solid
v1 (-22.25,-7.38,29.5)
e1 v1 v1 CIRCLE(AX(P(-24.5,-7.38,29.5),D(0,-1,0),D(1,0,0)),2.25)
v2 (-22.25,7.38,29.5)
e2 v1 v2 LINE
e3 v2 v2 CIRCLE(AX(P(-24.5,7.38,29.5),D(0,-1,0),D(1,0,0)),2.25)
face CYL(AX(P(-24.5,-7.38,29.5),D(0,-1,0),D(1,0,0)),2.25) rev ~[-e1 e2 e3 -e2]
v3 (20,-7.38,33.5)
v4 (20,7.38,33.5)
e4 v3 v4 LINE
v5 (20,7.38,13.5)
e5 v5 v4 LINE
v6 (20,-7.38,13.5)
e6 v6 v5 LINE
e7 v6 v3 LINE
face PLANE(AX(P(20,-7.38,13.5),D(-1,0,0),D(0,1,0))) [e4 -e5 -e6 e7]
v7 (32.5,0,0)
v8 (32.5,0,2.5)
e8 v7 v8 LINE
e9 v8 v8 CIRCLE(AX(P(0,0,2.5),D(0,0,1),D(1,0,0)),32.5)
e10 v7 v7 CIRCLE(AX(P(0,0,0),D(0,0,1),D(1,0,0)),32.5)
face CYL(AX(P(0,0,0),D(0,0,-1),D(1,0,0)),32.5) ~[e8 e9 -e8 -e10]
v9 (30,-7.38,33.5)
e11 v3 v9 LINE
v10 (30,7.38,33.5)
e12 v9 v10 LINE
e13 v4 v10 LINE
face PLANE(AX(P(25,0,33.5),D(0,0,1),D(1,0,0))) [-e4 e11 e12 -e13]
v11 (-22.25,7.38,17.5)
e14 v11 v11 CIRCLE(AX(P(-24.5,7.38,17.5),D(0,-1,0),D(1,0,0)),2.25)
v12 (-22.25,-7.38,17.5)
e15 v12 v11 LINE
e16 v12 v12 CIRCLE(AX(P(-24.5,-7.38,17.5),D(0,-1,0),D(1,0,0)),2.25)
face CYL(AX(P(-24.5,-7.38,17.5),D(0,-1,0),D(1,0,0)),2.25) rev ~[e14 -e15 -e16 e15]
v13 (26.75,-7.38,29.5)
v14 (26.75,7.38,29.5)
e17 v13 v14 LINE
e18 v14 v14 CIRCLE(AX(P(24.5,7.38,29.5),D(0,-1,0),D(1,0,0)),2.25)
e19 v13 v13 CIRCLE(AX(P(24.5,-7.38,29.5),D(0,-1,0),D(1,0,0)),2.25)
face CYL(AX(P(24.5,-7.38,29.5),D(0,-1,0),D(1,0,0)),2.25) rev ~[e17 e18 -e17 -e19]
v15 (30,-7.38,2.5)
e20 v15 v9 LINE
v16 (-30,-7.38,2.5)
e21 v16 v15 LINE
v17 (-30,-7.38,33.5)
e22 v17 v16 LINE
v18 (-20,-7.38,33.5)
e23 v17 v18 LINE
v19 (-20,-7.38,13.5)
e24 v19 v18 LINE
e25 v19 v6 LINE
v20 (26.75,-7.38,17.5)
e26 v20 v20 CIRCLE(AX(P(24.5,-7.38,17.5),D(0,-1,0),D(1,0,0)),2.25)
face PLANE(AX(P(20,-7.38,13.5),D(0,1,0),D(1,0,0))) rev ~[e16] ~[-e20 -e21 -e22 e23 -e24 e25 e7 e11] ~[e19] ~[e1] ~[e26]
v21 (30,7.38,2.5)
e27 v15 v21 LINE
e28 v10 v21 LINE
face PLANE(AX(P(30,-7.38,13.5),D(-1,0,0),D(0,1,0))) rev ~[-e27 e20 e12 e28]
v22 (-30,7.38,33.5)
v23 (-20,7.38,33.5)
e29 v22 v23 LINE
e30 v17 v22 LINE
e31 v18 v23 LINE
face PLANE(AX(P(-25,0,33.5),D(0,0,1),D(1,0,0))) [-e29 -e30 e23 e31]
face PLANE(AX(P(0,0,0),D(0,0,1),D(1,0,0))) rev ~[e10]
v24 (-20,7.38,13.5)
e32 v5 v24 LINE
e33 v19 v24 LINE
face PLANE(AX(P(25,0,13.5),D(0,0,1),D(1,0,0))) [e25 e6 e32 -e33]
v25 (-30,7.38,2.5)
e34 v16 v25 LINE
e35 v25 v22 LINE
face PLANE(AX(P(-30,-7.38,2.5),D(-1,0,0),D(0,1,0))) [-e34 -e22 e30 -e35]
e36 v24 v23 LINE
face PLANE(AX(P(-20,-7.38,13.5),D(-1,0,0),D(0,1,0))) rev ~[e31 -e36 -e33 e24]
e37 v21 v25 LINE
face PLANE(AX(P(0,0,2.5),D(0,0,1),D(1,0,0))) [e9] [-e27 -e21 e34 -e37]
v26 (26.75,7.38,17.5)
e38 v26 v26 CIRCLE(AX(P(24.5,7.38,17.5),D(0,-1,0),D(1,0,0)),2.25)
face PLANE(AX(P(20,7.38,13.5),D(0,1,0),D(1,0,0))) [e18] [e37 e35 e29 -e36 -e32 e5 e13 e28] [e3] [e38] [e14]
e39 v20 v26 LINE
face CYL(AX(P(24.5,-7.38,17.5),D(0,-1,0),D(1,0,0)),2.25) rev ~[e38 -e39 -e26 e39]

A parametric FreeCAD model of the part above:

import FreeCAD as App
import Part
import Sketcher


def add_polygon(sketch, points):
    """Adds a closed chain of lines whose ends are joined by coincident constraints."""
    first, n = sketch.GeometryCount, len(points)
    for a, b in zip(points, points[1:] + points[:1]):
        sketch.addGeometry(Part.LineSegment(App.Vector(*a, 0), App.Vector(*b, 0)), False)
    for i in range(n):
        sketch.addConstraint(Sketcher.Constraint("Coincident", first + i, 2, first + (i + 1) % n, 1))

doc = App.newDocument("Part")
body = doc.addObject("PartDesign::Body", "Body")

sketch1 = body.newObject("Sketcher::SketchObject", "Sketch")
sketch1.AttachmentSupport = (doc.getObject("XY_Plane"), [""])
sketch1.MapMode = "FlatFace"
sketch1.addGeometry(Part.Circle(App.Vector(0, 0, 0), App.Vector(0, 0, 1), 32), False)
sketch1.addConstraint(Sketcher.Constraint("Coincident", 0, 3, -1, 1))
sketch1.addConstraint(Sketcher.Constraint("Diameter", 0, 65.0))
pad1 = body.newObject("PartDesign::Pad", "Pad")
pad1.Profile = sketch1
pad1.Length = 2.5

sketch2 = body.newObject("Sketcher::SketchObject", "Sketch001")
sketch2.AttachmentSupport = (doc.getObject("XY_Plane"), [""])
sketch2.MapMode = "FlatFace"
sketch2.AttachmentOffset = App.Placement(App.Vector(0, 0, 2.5), App.Rotation())
add_polygon(sketch2, [(30, -7), (30, 7), (-30, 7), (-30, -7)])
sketch2.addConstraint(Sketcher.Constraint("Vertical", 0))
sketch2.addConstraint(Sketcher.Constraint("Horizontal", 1))
sketch2.addConstraint(Sketcher.Constraint("Vertical", 2))
sketch2.addConstraint(Sketcher.Constraint("Horizontal", 3))
sketch2.addConstraint(Sketcher.Constraint("Symmetric", 0, 2, 2, 2, -1, 1))
sketch2.addConstraint(Sketcher.Constraint("DistanceX", 1, 2, 1, 1, 60.0))
sketch2.addConstraint(Sketcher.Constraint("DistanceY", 0, 1, 0, 2, 14.76))
pad2 = body.newObject("PartDesign::Pad", "Pad001")
pad2.Profile = sketch2
pad2.Length = 11

sketch3 = body.newObject("Sketcher::SketchObject", "Sketch002")
sketch3.AttachmentSupport = (doc.getObject("XY_Plane"), [""])
sketch3.MapMode = "FlatFace"
sketch3.AttachmentOffset = App.Placement(App.Vector(0, 0, 13.5), App.Rotation())
add_polygon(sketch3, [(20, 7), (20, -7), (30, -7), (30, 7)])
add_polygon(sketch3, [(-30, 7), (-30, -7), (-20, -7), (-20, 7)])
sketch3.addConstraint(Sketcher.Constraint("Vertical", 0))
sketch3.addConstraint(Sketcher.Constraint("Horizontal", 1))
sketch3.addConstraint(Sketcher.Constraint("Vertical", 2))
sketch3.addConstraint(Sketcher.Constraint("Horizontal", 3))
sketch3.addConstraint(Sketcher.Constraint("Vertical", 4))
sketch3.addConstraint(Sketcher.Constraint("Horizontal", 5))
sketch3.addConstraint(Sketcher.Constraint("Vertical", 6))
sketch3.addConstraint(Sketcher.Constraint("Horizontal", 7))
sketch3.addConstraint(Sketcher.Constraint("Symmetric", 2, 2, 4, 2, -1, 1))
sketch3.addConstraint(Sketcher.Constraint("Symmetric", 0, 2, 6, 2, -1, 1))
sketch3.addConstraint(Sketcher.Constraint("Horizontal", 1, 2, 4, 2))
sketch3.addConstraint(Sketcher.Constraint("DistanceX", 1, 1, 1, 2, 10.0))
sketch3.addConstraint(Sketcher.Constraint("DistanceX", -1, 1, 0, 2, 20.0))
sketch3.addConstraint(Sketcher.Constraint("DistanceY", 0, 2, 0, 1, 14.76))
pad3 = body.newObject("PartDesign::Pad", "Pad002")
pad3.Profile = sketch3
pad3.Length = 20

sketch4 = body.newObject("Sketcher::SketchObject", "Sketch003")
sketch4.AttachmentSupport = (doc.getObject("XZ_Plane"), [""])
sketch4.MapMode = "FlatFace"
sketch4.AttachmentOffset = App.Placement(App.Vector(0, 0, 7.38), App.Rotation())
sketch4.addGeometry(Part.Circle(App.Vector(-24.5, 17.5, 0), App.Vector(0, 0, 1), 2.2), False)
sketch4.addGeometry(Part.Circle(App.Vector(-24.5, 29.5, 0), App.Vector(0, 0, 1), 2.2), False)
sketch4.addGeometry(Part.Circle(App.Vector(24.5, 17.5, 0), App.Vector(0, 0, 1), 2.2), False)
sketch4.addGeometry(Part.Circle(App.Vector(24.5, 29.5, 0), App.Vector(0, 0, 1), 2.2), False)
sketch4.addConstraint(Sketcher.Constraint("Equal", 0, 1))
sketch4.addConstraint(Sketcher.Constraint("Equal", 1, 2))
sketch4.addConstraint(Sketcher.Constraint("Equal", 2, 3))
sketch4.addConstraint(Sketcher.Constraint("Symmetric", 0, 3, 2, 3, -2))
sketch4.addConstraint(Sketcher.Constraint("Symmetric", 1, 3, 3, 3, -2))
sketch4.addConstraint(Sketcher.Constraint("Vertical", 0, 3, 1, 3))
sketch4.addConstraint(Sketcher.Constraint("Diameter", 0, 4.5))
sketch4.addConstraint(Sketcher.Constraint("DistanceY", 0, 3, 1, 3, 12.0))
sketch4.addConstraint(Sketcher.Constraint("DistanceX", 0, 3, 2, 3, 49.0))
sketch4.addConstraint(Sketcher.Constraint("DistanceY", -1, 1, 0, 3, 17.5))
pocket1 = body.newObject("PartDesign::Pocket", "Pocket")
pocket1.Profile = sketch4
pocket1.Length = 25.4

doc.recompute()
